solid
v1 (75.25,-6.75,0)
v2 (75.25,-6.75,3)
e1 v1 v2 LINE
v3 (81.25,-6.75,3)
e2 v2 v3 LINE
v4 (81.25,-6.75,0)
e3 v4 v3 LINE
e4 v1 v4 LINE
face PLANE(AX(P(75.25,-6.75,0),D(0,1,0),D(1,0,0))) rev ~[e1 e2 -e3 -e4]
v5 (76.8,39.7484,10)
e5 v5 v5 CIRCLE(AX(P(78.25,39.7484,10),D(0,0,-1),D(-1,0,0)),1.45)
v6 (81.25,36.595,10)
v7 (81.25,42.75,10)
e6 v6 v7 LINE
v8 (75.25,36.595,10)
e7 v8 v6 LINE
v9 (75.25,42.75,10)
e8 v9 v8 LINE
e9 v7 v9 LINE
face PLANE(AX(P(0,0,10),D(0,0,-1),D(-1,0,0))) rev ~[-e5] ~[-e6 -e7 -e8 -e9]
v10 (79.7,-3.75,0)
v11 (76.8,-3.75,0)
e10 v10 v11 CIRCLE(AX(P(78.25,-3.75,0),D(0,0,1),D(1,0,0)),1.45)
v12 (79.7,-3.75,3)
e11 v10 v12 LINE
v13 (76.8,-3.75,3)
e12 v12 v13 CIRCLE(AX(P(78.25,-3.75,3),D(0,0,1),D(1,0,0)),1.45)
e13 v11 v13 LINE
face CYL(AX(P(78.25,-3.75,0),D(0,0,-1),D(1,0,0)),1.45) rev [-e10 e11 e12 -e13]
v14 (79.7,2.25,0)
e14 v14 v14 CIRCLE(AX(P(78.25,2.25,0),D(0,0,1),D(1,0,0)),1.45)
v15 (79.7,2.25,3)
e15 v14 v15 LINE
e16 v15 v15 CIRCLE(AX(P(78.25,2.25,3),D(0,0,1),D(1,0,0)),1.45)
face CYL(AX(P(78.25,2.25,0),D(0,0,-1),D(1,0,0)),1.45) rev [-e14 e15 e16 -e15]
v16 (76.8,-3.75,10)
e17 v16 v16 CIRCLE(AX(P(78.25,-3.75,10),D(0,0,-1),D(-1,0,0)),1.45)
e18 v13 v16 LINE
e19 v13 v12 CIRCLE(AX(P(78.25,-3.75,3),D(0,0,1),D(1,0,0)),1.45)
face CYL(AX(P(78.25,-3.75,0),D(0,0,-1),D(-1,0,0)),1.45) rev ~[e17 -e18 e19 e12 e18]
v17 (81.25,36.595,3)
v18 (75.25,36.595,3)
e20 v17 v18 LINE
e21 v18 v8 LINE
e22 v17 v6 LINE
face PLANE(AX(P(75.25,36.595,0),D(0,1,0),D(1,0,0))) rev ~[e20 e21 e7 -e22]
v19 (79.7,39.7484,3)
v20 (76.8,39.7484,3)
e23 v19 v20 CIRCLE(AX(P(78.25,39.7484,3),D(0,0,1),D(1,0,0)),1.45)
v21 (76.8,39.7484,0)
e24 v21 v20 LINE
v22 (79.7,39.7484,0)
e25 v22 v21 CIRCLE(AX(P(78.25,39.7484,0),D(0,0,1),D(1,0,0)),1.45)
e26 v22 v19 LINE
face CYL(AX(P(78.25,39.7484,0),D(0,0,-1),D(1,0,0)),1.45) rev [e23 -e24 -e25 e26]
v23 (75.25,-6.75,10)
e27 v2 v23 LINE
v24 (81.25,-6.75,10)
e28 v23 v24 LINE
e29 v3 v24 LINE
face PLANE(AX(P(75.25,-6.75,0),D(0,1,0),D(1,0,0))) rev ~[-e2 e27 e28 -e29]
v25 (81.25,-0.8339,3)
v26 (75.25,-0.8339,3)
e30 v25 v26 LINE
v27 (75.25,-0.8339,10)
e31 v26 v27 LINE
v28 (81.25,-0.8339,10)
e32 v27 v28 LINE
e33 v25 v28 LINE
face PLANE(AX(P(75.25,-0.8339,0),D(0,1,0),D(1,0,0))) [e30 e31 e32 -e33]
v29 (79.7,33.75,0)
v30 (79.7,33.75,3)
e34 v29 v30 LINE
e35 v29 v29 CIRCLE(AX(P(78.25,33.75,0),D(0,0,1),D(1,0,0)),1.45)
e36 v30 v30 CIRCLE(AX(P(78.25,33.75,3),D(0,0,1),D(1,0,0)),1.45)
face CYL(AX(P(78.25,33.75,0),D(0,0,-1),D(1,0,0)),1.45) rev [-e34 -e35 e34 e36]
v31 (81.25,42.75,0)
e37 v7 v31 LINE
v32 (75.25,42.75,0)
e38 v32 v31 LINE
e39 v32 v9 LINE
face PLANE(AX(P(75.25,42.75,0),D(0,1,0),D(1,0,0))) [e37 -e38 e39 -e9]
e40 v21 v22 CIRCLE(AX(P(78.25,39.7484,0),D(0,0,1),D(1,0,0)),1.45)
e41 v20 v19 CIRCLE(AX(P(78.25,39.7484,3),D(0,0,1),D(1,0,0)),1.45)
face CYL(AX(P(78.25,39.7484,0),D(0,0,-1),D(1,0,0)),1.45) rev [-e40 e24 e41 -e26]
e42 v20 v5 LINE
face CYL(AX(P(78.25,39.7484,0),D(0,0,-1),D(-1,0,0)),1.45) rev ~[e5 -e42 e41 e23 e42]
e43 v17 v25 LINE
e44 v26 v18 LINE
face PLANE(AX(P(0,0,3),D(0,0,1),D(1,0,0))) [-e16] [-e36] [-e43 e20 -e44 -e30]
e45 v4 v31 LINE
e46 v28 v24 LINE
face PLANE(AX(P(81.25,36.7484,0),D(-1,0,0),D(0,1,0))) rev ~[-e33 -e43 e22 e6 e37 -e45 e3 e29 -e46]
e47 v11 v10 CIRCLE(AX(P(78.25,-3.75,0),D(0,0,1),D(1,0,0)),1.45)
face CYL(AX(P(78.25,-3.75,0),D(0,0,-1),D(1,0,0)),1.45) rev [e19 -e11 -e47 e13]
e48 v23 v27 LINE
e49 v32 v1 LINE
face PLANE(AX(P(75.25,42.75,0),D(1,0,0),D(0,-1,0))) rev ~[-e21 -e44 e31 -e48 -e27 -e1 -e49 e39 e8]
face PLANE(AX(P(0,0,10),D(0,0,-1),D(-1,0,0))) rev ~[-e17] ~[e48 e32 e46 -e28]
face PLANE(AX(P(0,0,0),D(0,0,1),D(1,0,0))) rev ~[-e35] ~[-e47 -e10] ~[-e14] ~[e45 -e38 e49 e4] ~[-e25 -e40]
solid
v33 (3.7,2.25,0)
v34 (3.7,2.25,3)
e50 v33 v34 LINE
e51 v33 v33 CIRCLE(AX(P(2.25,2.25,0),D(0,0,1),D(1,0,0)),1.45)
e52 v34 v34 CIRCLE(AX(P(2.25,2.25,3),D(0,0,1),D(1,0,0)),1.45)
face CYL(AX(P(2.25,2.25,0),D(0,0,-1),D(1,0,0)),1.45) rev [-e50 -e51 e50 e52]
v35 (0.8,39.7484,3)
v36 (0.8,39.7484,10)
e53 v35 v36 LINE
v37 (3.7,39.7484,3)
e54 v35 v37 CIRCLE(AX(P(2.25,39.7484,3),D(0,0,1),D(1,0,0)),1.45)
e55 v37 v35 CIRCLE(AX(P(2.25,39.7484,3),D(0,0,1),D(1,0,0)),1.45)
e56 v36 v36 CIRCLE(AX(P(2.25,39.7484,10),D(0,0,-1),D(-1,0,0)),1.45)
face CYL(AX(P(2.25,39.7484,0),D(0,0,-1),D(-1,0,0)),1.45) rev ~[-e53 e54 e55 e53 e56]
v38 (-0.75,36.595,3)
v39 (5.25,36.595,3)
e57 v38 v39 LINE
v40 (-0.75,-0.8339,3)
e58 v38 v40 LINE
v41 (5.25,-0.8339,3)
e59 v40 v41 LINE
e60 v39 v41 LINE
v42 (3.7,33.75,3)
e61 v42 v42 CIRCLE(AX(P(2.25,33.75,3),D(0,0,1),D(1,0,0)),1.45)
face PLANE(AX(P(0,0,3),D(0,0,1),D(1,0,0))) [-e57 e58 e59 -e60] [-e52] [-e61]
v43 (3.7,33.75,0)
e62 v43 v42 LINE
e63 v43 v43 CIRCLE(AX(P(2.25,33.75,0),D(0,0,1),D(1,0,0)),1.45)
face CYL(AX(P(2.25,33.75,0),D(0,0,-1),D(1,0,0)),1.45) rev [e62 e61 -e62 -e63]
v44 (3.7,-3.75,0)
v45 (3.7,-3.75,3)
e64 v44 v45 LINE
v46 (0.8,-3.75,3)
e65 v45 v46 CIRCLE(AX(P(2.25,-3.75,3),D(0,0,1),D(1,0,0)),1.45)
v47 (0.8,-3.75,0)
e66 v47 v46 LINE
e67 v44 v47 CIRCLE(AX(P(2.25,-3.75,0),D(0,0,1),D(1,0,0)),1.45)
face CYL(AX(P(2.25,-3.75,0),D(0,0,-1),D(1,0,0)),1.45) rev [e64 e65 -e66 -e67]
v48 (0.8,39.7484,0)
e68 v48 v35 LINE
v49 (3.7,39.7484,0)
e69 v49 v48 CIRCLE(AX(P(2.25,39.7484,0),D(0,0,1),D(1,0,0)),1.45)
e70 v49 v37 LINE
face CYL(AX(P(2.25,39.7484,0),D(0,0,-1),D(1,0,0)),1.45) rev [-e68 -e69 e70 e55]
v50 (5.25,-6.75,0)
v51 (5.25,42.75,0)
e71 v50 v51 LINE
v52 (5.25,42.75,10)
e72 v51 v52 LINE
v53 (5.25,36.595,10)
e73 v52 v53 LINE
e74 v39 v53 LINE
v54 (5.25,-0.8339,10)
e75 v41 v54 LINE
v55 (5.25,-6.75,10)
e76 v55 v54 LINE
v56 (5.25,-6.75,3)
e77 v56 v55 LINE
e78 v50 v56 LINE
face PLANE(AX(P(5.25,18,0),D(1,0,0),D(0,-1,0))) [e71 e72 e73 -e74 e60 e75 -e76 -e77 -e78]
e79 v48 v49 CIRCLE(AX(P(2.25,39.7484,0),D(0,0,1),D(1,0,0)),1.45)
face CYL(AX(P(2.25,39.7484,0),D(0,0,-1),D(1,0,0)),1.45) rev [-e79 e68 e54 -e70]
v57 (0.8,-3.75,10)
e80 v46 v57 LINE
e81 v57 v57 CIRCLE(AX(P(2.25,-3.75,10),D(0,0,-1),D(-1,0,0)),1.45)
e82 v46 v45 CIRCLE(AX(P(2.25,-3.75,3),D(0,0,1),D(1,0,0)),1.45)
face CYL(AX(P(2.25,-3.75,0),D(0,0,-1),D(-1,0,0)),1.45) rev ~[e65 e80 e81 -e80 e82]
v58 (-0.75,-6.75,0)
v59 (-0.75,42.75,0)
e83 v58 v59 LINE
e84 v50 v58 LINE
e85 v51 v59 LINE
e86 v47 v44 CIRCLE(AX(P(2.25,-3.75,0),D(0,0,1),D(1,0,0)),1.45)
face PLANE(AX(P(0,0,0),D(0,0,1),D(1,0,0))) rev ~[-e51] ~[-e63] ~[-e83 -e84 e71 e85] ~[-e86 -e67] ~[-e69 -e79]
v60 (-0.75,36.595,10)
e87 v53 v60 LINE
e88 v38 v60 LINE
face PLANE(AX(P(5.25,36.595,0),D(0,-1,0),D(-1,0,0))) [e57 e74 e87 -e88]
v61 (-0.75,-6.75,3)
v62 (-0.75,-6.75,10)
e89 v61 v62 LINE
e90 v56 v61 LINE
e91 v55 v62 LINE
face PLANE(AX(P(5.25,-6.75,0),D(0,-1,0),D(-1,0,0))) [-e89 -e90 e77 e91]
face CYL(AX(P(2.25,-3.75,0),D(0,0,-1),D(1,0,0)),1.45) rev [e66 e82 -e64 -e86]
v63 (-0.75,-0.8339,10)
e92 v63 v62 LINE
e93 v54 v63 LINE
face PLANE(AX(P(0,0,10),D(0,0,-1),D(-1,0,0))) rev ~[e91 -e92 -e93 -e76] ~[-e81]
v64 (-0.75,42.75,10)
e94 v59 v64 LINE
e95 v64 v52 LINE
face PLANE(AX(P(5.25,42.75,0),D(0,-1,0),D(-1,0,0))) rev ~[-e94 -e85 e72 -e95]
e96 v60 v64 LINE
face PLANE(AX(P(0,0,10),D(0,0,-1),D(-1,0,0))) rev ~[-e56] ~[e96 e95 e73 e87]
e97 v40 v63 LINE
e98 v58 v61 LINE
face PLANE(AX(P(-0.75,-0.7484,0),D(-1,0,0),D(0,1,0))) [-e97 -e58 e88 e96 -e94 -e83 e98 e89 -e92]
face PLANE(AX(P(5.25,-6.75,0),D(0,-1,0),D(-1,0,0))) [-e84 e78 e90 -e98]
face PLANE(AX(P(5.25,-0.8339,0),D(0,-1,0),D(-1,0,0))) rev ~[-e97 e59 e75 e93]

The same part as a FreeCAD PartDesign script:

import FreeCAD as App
import Part
import Sketcher
Q = App.Units.Quantity


def add_polygon(sketch, points):
    """Adds a closed chain of lines whose ends are joined by coincident constraints."""
    first, n = sketch.GeometryCount, len(points)
    for a, b in zip(points, points[1:] + points[:1]):
        sketch.addGeometry(Part.LineSegment(App.Vector(*a, 0), App.Vector(*b, 0)), False)
    for i in range(n):
        sketch.addConstraint(Sketcher.Constraint("Coincident", first + i, 2, first + (i + 1) % n, 1))

doc = App.newDocument("Part")
body = doc.addObject("PartDesign::Body", "Body")
body.AllowCompound = True

# Sketch on XY plane
sketch1 = body.newObject("Sketcher::SketchObject", "Sketch")
sketch1.AttachmentSupport = (doc.getObject("XY_Plane"), [""])
sketch1.MapMode = "FlatFace"
add_polygon(sketch1, [(81.25, 42.75), (75.25, 42.75), (75.25, -6.75), (81.25, -6.75)])  # lines 0-3
sketch1.addGeometry(Part.Circle(App.Vector(78.25, 39.7484, 0), App.Vector(0, 0, 1), 1.45), False)  # 4
sketch1.addGeometry(Part.Circle(App.Vector(78.25, 33.75, 0), App.Vector(0, 0, 1), 1.45), False)  # 5
sketch1.addGeometry(Part.Circle(App.Vector(78.25, 2.25, 0), App.Vector(0, 0, 1), 1.45), False)  # 6
sketch1.addGeometry(Part.Circle(App.Vector(78.25, -3.75, 0), App.Vector(0, 0, 1), 1.45), False)  # 7
add_polygon(sketch1, [(5.25, 42.75), (-0.75, 42.75), (-0.75, -6.75), (5.25, -6.75)])  # lines 8-11
sketch1.addGeometry(Part.Circle(App.Vector(2.25, 2.25, 0), App.Vector(0, 0, 1), 1.45), False)  # 12
sketch1.addGeometry(Part.Circle(App.Vector(2.25, -3.75, 0), App.Vector(0, 0, 1), 1.45), False)  # 13
sketch1.addGeometry(Part.Circle(App.Vector(2.25, 33.75, 0), App.Vector(0, 0, 1), 1.45), False)  # 14
sketch1.addGeometry(Part.Circle(App.Vector(2.25, 39.7484, 0), App.Vector(0, 0, 1), 1.45), False)  # 15
sketch1.addConstraint(Sketcher.Constraint("Horizontal", 0))
sketch1.addConstraint(Sketcher.Constraint("Vertical", 1))
sketch1.addConstraint(Sketcher.Constraint("Horizontal", 2))
sketch1.addConstraint(Sketcher.Constraint("Vertical", 3))
sketch1.addConstraint(Sketcher.Constraint("Horizontal", 8))
sketch1.addConstraint(Sketcher.Constraint("Vertical", 9))
sketch1.addConstraint(Sketcher.Constraint("Horizontal", 10))
sketch1.addConstraint(Sketcher.Constraint("Vertical", 11))
sketch1.addConstraint(Sketcher.Constraint("Equal", 4, 5))
sketch1.addConstraint(Sketcher.Constraint("Equal", 5, 6))
sketch1.addConstraint(Sketcher.Constraint("Equal", 6, 7))
sketch1.addConstraint(Sketcher.Constraint("Equal", 7, 12))
sketch1.addConstraint(Sketcher.Constraint("Equal", 12, 13))
sketch1.addConstraint(Sketcher.Constraint("Equal", 13, 14))
sketch1.addConstraint(Sketcher.Constraint("Equal", 14, 15))
sketch1.addConstraint(Sketcher.Constraint("Horizontal", 6, 3, 12, 3))
sketch1.addConstraint(Sketcher.Constraint("Horizontal", 7, 3, 13, 3))
sketch1.addConstraint(Sketcher.Constraint("Horizontal", 5, 3, 14, 3))
sketch1.addConstraint(Sketcher.Constraint("Horizontal", 4, 3, 15, 3))
sketch1.addConstraint(Sketcher.Constraint("Horizontal", 3, 2, 8, 2))
sketch1.addConstraint(Sketcher.Constraint("Horizontal", 2, 2, 9, 2))
sketch1.addConstraint(Sketcher.Constraint("Vertical", 4, 3, 5, 3))
sketch1.addConstraint(Sketcher.Constraint("Vertical", 5, 3, 6, 3))
sketch1.addConstraint(Sketcher.Constraint("Vertical", 6, 3, 7, 3))
sketch1.addConstraint(Sketcher.Constraint("Vertical", 12, 3, 13, 3))
sketch1.addConstraint(Sketcher.Constraint("Vertical", 13, 3, 14, 3))
sketch1.addConstraint(Sketcher.Constraint("Vertical", 14, 3, 15, 3))
sketch1.addConstraint(Sketcher.Constraint("Equal", 2, 8))
sketch1.addConstraint(Sketcher.Constraint("DistanceX", 0, 2, 4, 3, Q("3 mm")))
sketch1.addConstraint(Sketcher.Constraint("DistanceY", 1, 2, 7, 3, Q("3 mm")))
sketch1.addConstraint(Sketcher.Constraint("DistanceX", 7, 3, 2, 2, Q("3 mm")))
sketch1.addConstraint(Sketcher.Constraint("DistanceX", 8, 2, 15, 3, Q("3 mm")))
sketch1.addConstraint(Sketcher.Constraint("Diameter", 4, Q("2.9 mm")))
sketch1.addConstraint(Sketcher.Constraint("DistanceY", 1, 2, 1, 1, Q("49.5 mm")))
sketch1.addConstraint(Sketcher.Constraint("DistanceY", 7, 3, 6, 3, Q("6 mm")))
sketch1.addConstraint(Sketcher.Constraint("DistanceX", 12, 3, 6, 3, Q("76 mm")))
sketch1.addConstraint(Sketcher.Constraint("DistanceY", 5, 3, 0, 2, Q("9 mm")))
sketch1.addConstraint(Sketcher.Constraint("DistanceX", -1, 1, 4, 3, Q("78.25 mm")))
sketch1.addConstraint(Sketcher.Constraint("DistanceY", -1, 1, 5, 3, Q("33.75 mm")))
sketch1.addConstraint(Sketcher.Constraint("DistanceY", -1, 1, 4, 3, Q("39.7484 mm")))
pad1 = body.newObject("PartDesign::Pad", "Pad")
pad1.Profile = sketch1
pad1.Length = 3

# Sketch on XY plane
sketch2 = body.newObject("Sketcher::SketchObject", "Sketch001")
sketch2.AttachmentSupport = (doc.getObject("XY_Plane"), [""])
sketch2.MapMode = "FlatFace"
add_polygon(sketch2, [(75.25, 42.75), (81.25, 42.75), (81.25, 36.595), (75.25, 36.595)])  # lines 0-3
sketch2.addGeometry(Part.Circle(App.Vector(78.25, 39.7484, 0), App.Vector(0, 0, 1), 1.45), False)  # 4
add_polygon(sketch2, [(81.25, -6.75), (75.25, -6.75), (75.25, -0.8339), (81.25, -0.8339)])  # lines 5-8
sketch2.addGeometry(Part.Circle(App.Vector(78.25, -3.75, 0), App.Vector(0, 0, 1), 1.45), False)  # 9
add_polygon(sketch2, [(-0.75, 36.595), (-0.75, 42.75), (5.25, 42.75), (5.25, 36.595)])  # lines 10-13
sketch2.addGeometry(Part.Circle(App.Vector(2.25, 39.7484, 0), App.Vector(0, 0, 1), 1.45), False)  # 14
add_polygon(sketch2, [(5.25, -0.8339), (5.25, -6.75), (-0.75, -6.75), (-0.75, -0.8339)])  # lines 15-18
sketch2.addGeometry(Part.Circle(App.Vector(2.25, -3.75, 0), App.Vector(0, 0, 1), 1.45), False)  # 19
sketch2.addConstraint(Sketcher.Constraint("Horizontal", 0))
sketch2.addConstraint(Sketcher.Constraint("Vertical", 1))
sketch2.addConstraint(Sketcher.Constraint("Horizontal", 2))
sketch2.addConstraint(Sketcher.Constraint("Vertical", 3))
sketch2.addConstraint(Sketcher.Constraint("Horizontal", 5))
sketch2.addConstraint(Sketcher.Constraint("Vertical", 6))
sketch2.addConstraint(Sketcher.Constraint("Horizontal", 7))
sketch2.addConstraint(Sketcher.Constraint("Vertical", 8))
sketch2.addConstraint(Sketcher.Constraint("Vertical", 10))
sketch2.addConstraint(Sketcher.Constraint("Horizontal", 11))
sketch2.addConstraint(Sketcher.Constraint("Vertical", 12))
sketch2.addConstraint(Sketcher.Constraint("Horizontal", 13))
sketch2.addConstraint(Sketcher.Constraint("Vertical", 15))
sketch2.addConstraint(Sketcher.Constraint("Horizontal", 16))
sketch2.addConstraint(Sketcher.Constraint("Vertical", 17))
sketch2.addConstraint(Sketcher.Constraint("Horizontal", 18))
sketch2.addConstraint(Sketcher.Constraint("Equal", 4, 9))
sketch2.addConstraint(Sketcher.Constraint("Equal", 9, 14))
sketch2.addConstraint(Sketcher.Constraint("Equal", 14, 19))
sketch2.addConstraint(Sketcher.Constraint("Horizontal", 4, 3, 14, 3))
sketch2.addConstraint(Sketcher.Constraint("Horizontal", 9, 3, 19, 3))
sketch2.addConstraint(Sketcher.Constraint("Horizontal", 3, 2, 10, 2))
sketch2.addConstraint(Sketcher.Constraint("Horizontal", 2, 2, 12, 2))
sketch2.addConstraint(Sketcher.Constraint("Horizontal", 8, 2, 15, 2))
sketch2.addConstraint(Sketcher.Constraint("Horizontal", 7, 2, 17, 2))
sketch2.addConstraint(Sketcher.Constraint("Vertical", 4, 3, 9, 3))
sketch2.addConstraint(Sketcher.Constraint("Vertical", 14, 3, 19, 3))
sketch2.addConstraint(Sketcher.Constraint("Vertical", 3, 2, 5, 2))
sketch2.addConstraint(Sketcher.Constraint("Vertical", 1, 2, 7, 2))
sketch2.addConstraint(Sketcher.Constraint("Vertical", 12, 2, 15, 2))
sketch2.addConstraint(Sketcher.Constraint("Vertical", 13, 2, 16, 2))
sketch2.addConstraint(Sketcher.Constraint("Equal", 7, 11))
sketch2.addConstraint(Sketcher.Constraint("Diameter", 4, Q("2.9 mm")))
sketch2.addConstraint(Sketcher.Constraint("DistanceX", 0, 1, 0, 2, Q("6 mm")))
sketch2.addConstraint(Sketcher.Constraint("DistanceX", 14, 3, 4, 3, Q("76 mm")))
sketch2.addConstraint(Sketcher.Constraint("DistanceX", 4, 3, 0, 2, Q("3 mm")))
sketch2.addConstraint(Sketcher.Constraint("DistanceY", 5, 2, 9, 3, Q("3 mm")))
sketch2.addConstraint(Sketcher.Constraint("DistanceX", 10, 2, 14, 3, Q("3 mm")))
sketch2.addConstraint(Sketcher.Constraint("DistanceY", 9, 3, 0, 2, Q("46.5 mm")))
sketch2.addConstraint(Sketcher.Constraint("DistanceY", 1, 2, 1, 1, Q("6.155 mm")))
sketch2.addConstraint(Sketcher.Constraint("DistanceY", 6, 1, 6, 2, Q("5.916 mm")))
sketch2.addConstraint(Sketcher.Constraint("DistanceX", -1, 1, 4, 3, Q("78.25 mm")))
sketch2.addConstraint(Sketcher.Constraint("DistanceY", 9, 3, -1, 1, Q("3.75 mm")))
sketch2.addConstraint(Sketcher.Constraint("DistanceY", -1, 1, 4, 3, Q("39.7484 mm")))
pad2 = body.newObject("PartDesign::Pad", "Pad001")
pad2.Profile = sketch2
pad2.Length = 10

doc.recompute()
